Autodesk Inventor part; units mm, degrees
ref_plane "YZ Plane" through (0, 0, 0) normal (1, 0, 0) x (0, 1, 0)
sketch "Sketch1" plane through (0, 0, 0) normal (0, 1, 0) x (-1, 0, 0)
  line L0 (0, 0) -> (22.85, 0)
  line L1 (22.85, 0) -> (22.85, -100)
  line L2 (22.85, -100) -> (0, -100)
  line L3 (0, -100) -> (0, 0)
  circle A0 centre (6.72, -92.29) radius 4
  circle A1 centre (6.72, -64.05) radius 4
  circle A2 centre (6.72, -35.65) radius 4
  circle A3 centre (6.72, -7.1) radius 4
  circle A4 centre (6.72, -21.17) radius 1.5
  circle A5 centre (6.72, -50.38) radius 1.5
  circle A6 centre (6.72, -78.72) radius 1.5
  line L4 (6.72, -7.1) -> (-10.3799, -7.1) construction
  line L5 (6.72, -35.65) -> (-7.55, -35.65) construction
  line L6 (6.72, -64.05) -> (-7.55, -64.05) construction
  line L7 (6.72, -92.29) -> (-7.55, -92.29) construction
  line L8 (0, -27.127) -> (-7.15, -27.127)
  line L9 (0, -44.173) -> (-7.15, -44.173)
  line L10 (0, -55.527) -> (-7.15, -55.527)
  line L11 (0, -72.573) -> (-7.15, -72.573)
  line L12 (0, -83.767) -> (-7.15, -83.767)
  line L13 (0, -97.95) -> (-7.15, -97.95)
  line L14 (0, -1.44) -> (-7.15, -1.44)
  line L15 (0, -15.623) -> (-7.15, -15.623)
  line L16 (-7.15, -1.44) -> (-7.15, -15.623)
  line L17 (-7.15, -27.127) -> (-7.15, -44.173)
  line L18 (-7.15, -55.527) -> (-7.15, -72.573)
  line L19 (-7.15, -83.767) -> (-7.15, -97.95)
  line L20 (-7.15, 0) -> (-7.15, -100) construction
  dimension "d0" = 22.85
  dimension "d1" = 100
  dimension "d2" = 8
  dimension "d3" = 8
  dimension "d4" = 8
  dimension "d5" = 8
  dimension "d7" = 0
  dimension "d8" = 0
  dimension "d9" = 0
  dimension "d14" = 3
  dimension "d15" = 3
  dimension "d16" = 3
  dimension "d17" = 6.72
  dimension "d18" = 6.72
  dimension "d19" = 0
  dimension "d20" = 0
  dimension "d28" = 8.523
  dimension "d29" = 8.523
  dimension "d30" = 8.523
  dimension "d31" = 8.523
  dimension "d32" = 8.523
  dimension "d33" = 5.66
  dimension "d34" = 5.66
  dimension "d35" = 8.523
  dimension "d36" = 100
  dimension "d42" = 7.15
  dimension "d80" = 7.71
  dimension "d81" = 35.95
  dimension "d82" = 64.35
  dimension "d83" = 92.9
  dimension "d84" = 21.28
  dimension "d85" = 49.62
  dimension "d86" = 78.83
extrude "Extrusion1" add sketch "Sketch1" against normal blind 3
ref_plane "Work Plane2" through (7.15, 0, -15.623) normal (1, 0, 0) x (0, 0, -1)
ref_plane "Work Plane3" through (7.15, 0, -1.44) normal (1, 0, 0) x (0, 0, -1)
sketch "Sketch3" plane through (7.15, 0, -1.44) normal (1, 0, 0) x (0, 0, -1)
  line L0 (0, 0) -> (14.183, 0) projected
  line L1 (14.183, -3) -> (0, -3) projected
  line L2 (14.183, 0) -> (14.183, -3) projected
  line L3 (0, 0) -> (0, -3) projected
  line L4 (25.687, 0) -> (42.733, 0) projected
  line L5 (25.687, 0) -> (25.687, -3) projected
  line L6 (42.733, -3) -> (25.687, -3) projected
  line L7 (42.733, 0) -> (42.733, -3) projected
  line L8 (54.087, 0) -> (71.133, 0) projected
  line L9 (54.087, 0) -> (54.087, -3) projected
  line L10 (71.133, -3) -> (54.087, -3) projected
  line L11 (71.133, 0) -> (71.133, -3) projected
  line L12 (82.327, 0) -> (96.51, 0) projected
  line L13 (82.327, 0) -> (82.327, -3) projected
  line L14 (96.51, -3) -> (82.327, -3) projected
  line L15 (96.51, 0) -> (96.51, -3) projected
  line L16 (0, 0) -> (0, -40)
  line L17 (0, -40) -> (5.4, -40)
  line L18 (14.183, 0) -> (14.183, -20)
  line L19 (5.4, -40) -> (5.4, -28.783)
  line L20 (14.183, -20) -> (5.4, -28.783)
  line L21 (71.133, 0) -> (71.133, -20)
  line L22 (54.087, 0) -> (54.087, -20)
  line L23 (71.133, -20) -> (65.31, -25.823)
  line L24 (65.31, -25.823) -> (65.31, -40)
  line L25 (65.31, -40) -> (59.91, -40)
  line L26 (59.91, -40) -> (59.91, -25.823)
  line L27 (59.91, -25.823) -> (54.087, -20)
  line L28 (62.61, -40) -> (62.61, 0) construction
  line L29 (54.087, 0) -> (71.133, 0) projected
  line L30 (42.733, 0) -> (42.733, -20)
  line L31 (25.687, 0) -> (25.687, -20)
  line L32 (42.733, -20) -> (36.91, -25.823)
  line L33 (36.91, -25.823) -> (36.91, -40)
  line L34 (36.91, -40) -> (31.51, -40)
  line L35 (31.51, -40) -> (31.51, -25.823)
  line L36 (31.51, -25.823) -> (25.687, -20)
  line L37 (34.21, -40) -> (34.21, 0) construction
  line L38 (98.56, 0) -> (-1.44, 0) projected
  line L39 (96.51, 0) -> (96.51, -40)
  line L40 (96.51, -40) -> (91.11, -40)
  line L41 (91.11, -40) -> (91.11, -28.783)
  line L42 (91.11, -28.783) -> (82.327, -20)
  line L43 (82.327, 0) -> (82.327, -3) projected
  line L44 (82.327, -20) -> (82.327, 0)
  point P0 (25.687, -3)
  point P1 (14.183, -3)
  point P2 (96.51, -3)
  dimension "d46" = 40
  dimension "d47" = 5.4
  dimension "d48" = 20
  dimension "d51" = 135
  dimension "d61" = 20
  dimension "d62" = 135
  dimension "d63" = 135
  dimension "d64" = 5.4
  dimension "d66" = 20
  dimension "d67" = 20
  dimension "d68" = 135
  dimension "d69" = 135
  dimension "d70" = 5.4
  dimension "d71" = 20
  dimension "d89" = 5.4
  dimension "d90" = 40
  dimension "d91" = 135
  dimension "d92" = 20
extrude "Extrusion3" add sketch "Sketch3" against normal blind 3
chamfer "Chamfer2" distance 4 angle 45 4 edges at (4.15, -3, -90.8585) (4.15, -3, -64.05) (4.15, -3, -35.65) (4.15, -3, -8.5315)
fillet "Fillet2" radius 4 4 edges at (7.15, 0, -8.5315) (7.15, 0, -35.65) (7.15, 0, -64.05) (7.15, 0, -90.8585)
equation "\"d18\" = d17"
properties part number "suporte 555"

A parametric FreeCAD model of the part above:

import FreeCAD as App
import Part
import Sketcher

V = App.Vector


def edges_at(feature, points):
    """Names of the edges that pass closest to the given points."""
    edges = feature.Shape.Edges
    near = lambda p: min(range(len(edges)), key=lambda i: edges[i].distToShape(Part.Vertex(*p))[0])
    return sorted({f"Edge{near(p) + 1}" for p in points})


def add_polygon(sketch, points):
    """Adds a closed chain of lines whose ends are joined by coincident constraints."""
    first, n = sketch.GeometryCount, len(points)
    for a, b in zip(points, points[1:] + points[:1]):
        sketch.addGeometry(Part.LineSegment(App.Vector(*a, 0), App.Vector(*b, 0)), False)
    for i in range(n):
        sketch.addConstraint(Sketcher.Constraint("Coincident", first + i, 2, first + (i + 1) % n, 1))

doc = App.newDocument("Part")
params = doc.addObject("Spreadsheet::Sheet", "Params")
for row, (alias, value) in enumerate([
    ("sketch1_diameter", "8 mm"),
    ("sketch1_diameter2", "3 mm"),
    ("sketch1_height", "100 mm"),
    ("sketch1_width", "22.85 mm"),
    ("sketch1_width2", "7.15 mm"),
    ("pad1_length", "3 mm"),
    ("sketch2_width", "20 mm"),
    ("sketch2_width2", "40 mm"),
    ("sketch2_height", "5.4 mm"),
    ("pad2_length", "3 mm"),
    ("chamfer_size", "4 mm"),
    ("fillet_radius", "4 mm"),
], start=1):
    params.set(f"A{row}", alias)
    params.set(f"B{row}", "=" + value)
    params.setAlias(f"B{row}", alias)

body = doc.addObject("PartDesign::Body", "Body")

sketch1 = body.newObject("Sketcher::SketchObject", "Sketch")
sketch1.AttachmentSupport = (doc.getObject("XZ_Plane"), [""])
sketch1.MapMode = "FlatFace"
add_polygon(sketch1, [(-22.9, 0), (0, 0), (0, -1.4), (7.2, -1.4), (7.2, -15.6), (0, -15.6), (0, -27.1), (7.2, -27.1), (7.2, -44.2), (0, -44.2), (0, -55.5), (7.2, -55.5), (7.2, -72.6), (0, -72.6), (0, -83.8), (7.2, -83.8), (7.2, -98), (0, -98), (0, -100), (-22.9, -100)])
sketch1.addGeometry(Part.Circle(V(-6.7, -92.3, 0), V(0, 0, 1), 4), False)
sketch1.addGeometry(Part.Circle(V(-6.7, -78.7, 0), V(0, 0, 1), 1.5), False)
sketch1.addGeometry(Part.Circle(V(-6.7, -64, 0), V(0, 0, 1), 4), False)
sketch1.addGeometry(Part.Circle(V(-6.7, -50.4, 0), V(0, 0, 1), 1.5), False)
sketch1.addGeometry(Part.Circle(V(-6.7, -35.6, 0), V(0, 0, 1), 4), False)
sketch1.addGeometry(Part.Circle(V(-6.7, -21.2, 0), V(0, 0, 1), 1.5), False)
sketch1.addGeometry(Part.Circle(V(-6.7, -7.1, 0), V(0, 0, 1), 4), False)
sketch1.addConstraint(Sketcher.Constraint("Horizontal", 0))
sketch1.addConstraint(Sketcher.Constraint("Vertical", 1))
sketch1.addConstraint(Sketcher.Constraint("Horizontal", 2))
sketch1.addConstraint(Sketcher.Constraint("Vertical", 3))
sketch1.addConstraint(Sketcher.Constraint("Horizontal", 4))
sketch1.addConstraint(Sketcher.Constraint("Vertical", 5))
sketch1.addConstraint(Sketcher.Constraint("Horizontal", 6))
sketch1.addConstraint(Sketcher.Constraint("Vertical", 7))
sketch1.addConstraint(Sketcher.Constraint("Horizontal", 8))
sketch1.addConstraint(Sketcher.Constraint("Vertical", 9))
sketch1.addConstraint(Sketcher.Constraint("Horizontal", 10))
sketch1.addConstraint(Sketcher.Constraint("Vertical", 11))
sketch1.addConstraint(Sketcher.Constraint("Horizontal", 12))
sketch1.addConstraint(Sketcher.Constraint("Vertical", 13))
sketch1.addConstraint(Sketcher.Constraint("Horizontal", 14))
sketch1.addConstraint(Sketcher.Constraint("Vertical", 15))
sketch1.addConstraint(Sketcher.Constraint("Horizontal", 16))
sketch1.addConstraint(Sketcher.Constraint("Vertical", 17))
sketch1.addConstraint(Sketcher.Constraint("Horizontal", 18))
sketch1.addConstraint(Sketcher.Constraint("Vertical", 19))
sketch1.addConstraint(Sketcher.Constraint("Coincident", 0, 2, -1, 1))
sketch1.addConstraint(Sketcher.Constraint("Equal", 20, 22))
sketch1.addConstraint(Sketcher.Constraint("Equal", 21, 23))
sketch1.addConstraint(Sketcher.Constraint("Equal", 22, 24))
sketch1.addConstraint(Sketcher.Constraint("Equal", 23, 25))
sketch1.addConstraint(Sketcher.Constraint("Equal", 24, 26))
sketch1.addConstraint(Sketcher.Constraint("PointOnObject", 4, 2, -2))
sketch1.addConstraint(Sketcher.Constraint("PointOnObject", 8, 2, -2))
sketch1.addConstraint(Sketcher.Constraint("PointOnObject", 12, 2, -2))
sketch1.addConstraint(Sketcher.Constraint("PointOnObject", 16, 2, -2))
sketch1.addConstraint(Sketcher.Constraint("Vertical", 20, 3, 21, 3))
sketch1.addConstraint(Sketcher.Constraint("Vertical", 21, 3, 22, 3))
sketch1.addConstraint(Sketcher.Constraint("Vertical", 22, 3, 23, 3))
sketch1.addConstraint(Sketcher.Constraint("Vertical", 23, 3, 24, 3))
sketch1.addConstraint(Sketcher.Constraint("Vertical", 24, 3, 25, 3))
sketch1.addConstraint(Sketcher.Constraint("Vertical", 25, 3, 26, 3))
sketch1.addConstraint(Sketcher.Constraint("Vertical", 3, 2, 6, 2))
sketch1.addConstraint(Sketcher.Constraint("Vertical", 7, 2, 10, 2))
sketch1.addConstraint(Sketcher.Constraint("Vertical", 11, 2, 14, 2))
sketch1.addConstraint(Sketcher.Constraint("Equal", 7, 11))
sketch1.addConstraint(Sketcher.Constraint("Equal", 3, 15))
sketch1.addConstraint(Sketcher.Constraint("Diameter", 20, 8.0))
sketch1.addConstraint(Sketcher.Constraint("Diameter", 21, 3.0))
sketch1.addConstraint(Sketcher.Constraint("DistanceY", 19, 1, 19, 2, 100.0))
sketch1.addConstraint(Sketcher.Constraint("DistanceX", 0, 1, 0, 2, 22.85))
sketch1.addConstraint(Sketcher.Constraint("DistanceX", 2, 1, 2, 2, 7.15))
sketch1.addConstraint(Sketcher.Constraint("DistanceX", 20, 3, -1, 1, 6.72))
sketch1.addConstraint(Sketcher.Constraint("DistanceY", 26, 3, 1, 2, 5.66))
sketch1.addConstraint(Sketcher.Constraint("DistanceY", 15, 2, 20, 3, 5.66))
sketch1.addConstraint(Sketcher.Constraint("DistanceY", 17, 2, 20, 3, 7.71))
sketch1.addConstraint(Sketcher.Constraint("DistanceY", 18, 2, 21, 3, 21.28))
sketch1.addConstraint(Sketcher.Constraint("DistanceY", 3, 2, 26, 3, 8.523))
sketch1.addConstraint(Sketcher.Constraint("DistanceY", 24, 3, 5, 2, 8.523))
sketch1.addConstraint(Sketcher.Constraint("DistanceY", 7, 2, 24, 3, 8.523))
sketch1.addConstraint(Sketcher.Constraint("DistanceY", 22, 3, 9, 2, 8.523))
sketch1.addConstraint(Sketcher.Constraint("DistanceY", 1, 2, 1, 1, 1.44))
sketch1.addConstraint(Sketcher.Constraint("DistanceY", 22, 3, 24, 3, 28.4))
sketch1.addConstraint(Sketcher.Constraint("DistanceY", 5, 2, 5, 1, 11.504))
sketch1.addConstraint(Sketcher.Constraint("DistanceY", 23, 3, -1, 1, 50.38))
sketch1.addConstraint(Sketcher.Constraint("DistanceY", 25, 3, -1, 1, 21.17))
sketch1.setExpression("Constraints[61]", "Params.sketch1_diameter")
sketch1.setExpression("Constraints[62]", "Params.sketch1_diameter2")
sketch1.setExpression("Constraints[63]", "Params.sketch1_height")
sketch1.setExpression("Constraints[64]", "Params.sketch1_width")
sketch1.setExpression("Constraints[65]", "Params.sketch1_width2")
pad1 = body.newObject("PartDesign::Pad", "Pad")
pad1.Profile = sketch1
pad1.setExpression("Length", "Params.pad1_length")

sketch2 = body.newObject("Sketcher::SketchObject", "Sketch001")
sketch2.AttachmentSupport = (doc.getObject("YZ_Plane"), [""])
sketch2.MapMode = "FlatFace"
sketch2.AttachmentOffset = App.Placement(V(0, 0, 7.15), App.Rotation())
add_polygon(sketch2, [(0, -98), (0, -84), (-20, -84), (-29, -93), (-40, -93), (-40, -98)])
add_polygon(sketch2, [(0, -73), (0, -56), (-20, -56), (-26, -61), (-40, -61), (-40, -67), (-26, -67), (-20, -73)])
add_polygon(sketch2, [(0, -44), (0, -27), (-20, -27), (-26, -33), (-40, -33), (-40, -38), (-26, -38), (-20, -44)])
add_polygon(sketch2, [(0, -16), (0, -1), (-40, -1), (-40, -7), (-29, -7), (-20, -16)])
sketch2.addConstraint(Sketcher.Constraint("Vertical", 0))
sketch2.addConstraint(Sketcher.Constraint("Horizontal", 1))
sketch2.addConstraint(Sketcher.Constraint("Horizontal", 3))
sketch2.addConstraint(Sketcher.Constraint("Vertical", 4))
sketch2.addConstraint(Sketcher.Constraint("Horizontal", 5))
sketch2.addConstraint(Sketcher.Constraint("Vertical", 6))
sketch2.addConstraint(Sketcher.Constraint("Horizontal", 7))
sketch2.addConstraint(Sketcher.Constraint("Horizontal", 9))
sketch2.addConstraint(Sketcher.Constraint("Vertical", 10))
sketch2.addConstraint(Sketcher.Constraint("Horizontal", 11))
sketch2.addConstraint(Sketcher.Constraint("Horizontal", 13))
sketch2.addConstraint(Sketcher.Constraint("Vertical", 14))
sketch2.addConstraint(Sketcher.Constraint("Horizontal", 15))
sketch2.addConstraint(Sketcher.Constraint("Horizontal", 17))
sketch2.addConstraint(Sketcher.Constraint("Vertical", 18))
sketch2.addConstraint(Sketcher.Constraint("Horizontal", 19))
sketch2.addConstraint(Sketcher.Constraint("Horizontal", 21))
sketch2.addConstraint(Sketcher.Constraint("Vertical", 22))
sketch2.addConstraint(Sketcher.Constraint("Horizontal", 23))
sketch2.addConstraint(Sketcher.Constraint("Vertical", 24))
sketch2.addConstraint(Sketcher.Constraint("Horizontal", 25))
sketch2.addConstraint(Sketcher.Constraint("Horizontal", 27))
sketch2.addConstraint(Sketcher.Constraint("PointOnObject", 0, 2, -2))
sketch2.addConstraint(Sketcher.Constraint("PointOnObject", 6, 2, -2))
sketch2.addConstraint(Sketcher.Constraint("PointOnObject", 14, 2, -2))
sketch2.addConstraint(Sketcher.Constraint("PointOnObject", 22, 2, -2))
sketch2.addConstraint(Sketcher.Constraint("Parallel", 2, 8))
sketch2.addConstraint(Sketcher.Constraint("Perpendicular", 8, 12))
sketch2.addConstraint(Sketcher.Constraint("Perpendicular", 12, 16))
sketch2.addConstraint(Sketcher.Constraint("Perpendicular", 16, 20))
sketch2.addConstraint(Sketcher.Constraint("Parallel", 20, 26))
sketch2.addConstraint(Sketcher.Constraint("Vertical", 1, 2, 7, 2))
sketch2.addConstraint(Sketcher.Constraint("Vertical", 4, 2, 9, 2))
sketch2.addConstraint(Sketcher.Constraint("Vertical", 8, 2, 11, 2))
sketch2.addConstraint(Sketcher.Constraint("Vertical", 7, 2, 12, 2))
sketch2.addConstraint(Sketcher.Constraint("Vertical", 12, 2, 15, 2))
sketch2.addConstraint(Sketcher.Constraint("Vertical", 11, 2, 16, 2))
sketch2.addConstraint(Sketcher.Constraint("Vertical", 10, 2, 17, 2))
sketch2.addConstraint(Sketcher.Constraint("Vertical", 16, 2, 19, 2))
sketch2.addConstraint(Sketcher.Constraint("Vertical", 15, 2, 20, 2))
sketch2.addConstraint(Sketcher.Constraint("Vertical", 18, 2, 23, 2))
sketch2.addConstraint(Sketcher.Constraint("Vertical", 2, 2, 25, 2))
sketch2.addConstraint(Sketcher.Constraint("Vertical", 20, 2, 26, 2))
sketch2.addConstraint(Sketcher.Constraint("Equal", 4, 10))
sketch2.addConstraint(Sketcher.Constraint("Equal", 6, 14))
sketch2.addConstraint(Sketcher.Constraint("Equal", 0, 22))
sketch2.addConstraint(Sketcher.Constraint("Equal", 18, 24))
sketch2.addConstraint(Sketcher.Constraint("DistanceX", 1, 2, 1, 1, 20.0))
sketch2.addConstraint(Sketcher.Constraint("DistanceX", 5, 1, 5, 2, 40.0))
sketch2.addConstraint(Sketcher.Constraint("DistanceY", 4, 2, 4, 1, 5.4))
sketch2.addConstraint(Sketcher.Constraint("DistanceY", 9, 2, 18, 2, 23.0))
sketch2.addConstraint(Sketcher.Constraint("DistanceY", 2, 2, 8, 2, 31.2))
sketch2.addConstraint(Sketcher.Constraint("DistanceX", 3, 2, 3, 1, 11.217))
sketch2.addConstraint(Sketcher.Constraint("DistanceX", 9, 2, 9, 1, 14.177))
sketch2.addConstraint(Sketcher.Constraint("DistanceY", 2, 2, -1, 1, 92.55))
sketch2.addConstraint(Sketcher.Constraint("DistanceY", 22, 2, -1, 1, 1.44))
sketch2.setExpression("Constraints[75]", "Params.sketch2_width")
sketch2.setExpression("Constraints[76]", "Params.sketch2_width2")
sketch2.setExpression("Constraints[77]", "Params.sketch2_height")
pad2 = body.newObject("PartDesign::Pad", "Pad001")
pad2.Profile = sketch2
pad2.setExpression("Length", "Params.pad2_length")
pad2.Reversed = True
doc.recompute()

chamfer = body.newObject("PartDesign::Chamfer", "Chamfer")
chamfer.Base = (pad2, edges_at(pad2, [
    (4.15, -3, -90.859),
    (4.15, -3, -64.05),
    (4.15, -3, -35.65),
    (4.15, -3, -8.531),
]))
chamfer.setExpression("Size", "Params.chamfer_size")
doc.recompute()

fillet = body.newObject("PartDesign::Fillet", "Fillet")
fillet.Base = (chamfer, edges_at(chamfer, [
    (7.15, 0, -8.531),
    (7.15, 0, -35.65),
    (7.15, 0, -64.05),
    (7.15, 0, -90.859),
]))
fillet.setExpression("Radius", "Params.fillet_radius")

doc.recompute()
